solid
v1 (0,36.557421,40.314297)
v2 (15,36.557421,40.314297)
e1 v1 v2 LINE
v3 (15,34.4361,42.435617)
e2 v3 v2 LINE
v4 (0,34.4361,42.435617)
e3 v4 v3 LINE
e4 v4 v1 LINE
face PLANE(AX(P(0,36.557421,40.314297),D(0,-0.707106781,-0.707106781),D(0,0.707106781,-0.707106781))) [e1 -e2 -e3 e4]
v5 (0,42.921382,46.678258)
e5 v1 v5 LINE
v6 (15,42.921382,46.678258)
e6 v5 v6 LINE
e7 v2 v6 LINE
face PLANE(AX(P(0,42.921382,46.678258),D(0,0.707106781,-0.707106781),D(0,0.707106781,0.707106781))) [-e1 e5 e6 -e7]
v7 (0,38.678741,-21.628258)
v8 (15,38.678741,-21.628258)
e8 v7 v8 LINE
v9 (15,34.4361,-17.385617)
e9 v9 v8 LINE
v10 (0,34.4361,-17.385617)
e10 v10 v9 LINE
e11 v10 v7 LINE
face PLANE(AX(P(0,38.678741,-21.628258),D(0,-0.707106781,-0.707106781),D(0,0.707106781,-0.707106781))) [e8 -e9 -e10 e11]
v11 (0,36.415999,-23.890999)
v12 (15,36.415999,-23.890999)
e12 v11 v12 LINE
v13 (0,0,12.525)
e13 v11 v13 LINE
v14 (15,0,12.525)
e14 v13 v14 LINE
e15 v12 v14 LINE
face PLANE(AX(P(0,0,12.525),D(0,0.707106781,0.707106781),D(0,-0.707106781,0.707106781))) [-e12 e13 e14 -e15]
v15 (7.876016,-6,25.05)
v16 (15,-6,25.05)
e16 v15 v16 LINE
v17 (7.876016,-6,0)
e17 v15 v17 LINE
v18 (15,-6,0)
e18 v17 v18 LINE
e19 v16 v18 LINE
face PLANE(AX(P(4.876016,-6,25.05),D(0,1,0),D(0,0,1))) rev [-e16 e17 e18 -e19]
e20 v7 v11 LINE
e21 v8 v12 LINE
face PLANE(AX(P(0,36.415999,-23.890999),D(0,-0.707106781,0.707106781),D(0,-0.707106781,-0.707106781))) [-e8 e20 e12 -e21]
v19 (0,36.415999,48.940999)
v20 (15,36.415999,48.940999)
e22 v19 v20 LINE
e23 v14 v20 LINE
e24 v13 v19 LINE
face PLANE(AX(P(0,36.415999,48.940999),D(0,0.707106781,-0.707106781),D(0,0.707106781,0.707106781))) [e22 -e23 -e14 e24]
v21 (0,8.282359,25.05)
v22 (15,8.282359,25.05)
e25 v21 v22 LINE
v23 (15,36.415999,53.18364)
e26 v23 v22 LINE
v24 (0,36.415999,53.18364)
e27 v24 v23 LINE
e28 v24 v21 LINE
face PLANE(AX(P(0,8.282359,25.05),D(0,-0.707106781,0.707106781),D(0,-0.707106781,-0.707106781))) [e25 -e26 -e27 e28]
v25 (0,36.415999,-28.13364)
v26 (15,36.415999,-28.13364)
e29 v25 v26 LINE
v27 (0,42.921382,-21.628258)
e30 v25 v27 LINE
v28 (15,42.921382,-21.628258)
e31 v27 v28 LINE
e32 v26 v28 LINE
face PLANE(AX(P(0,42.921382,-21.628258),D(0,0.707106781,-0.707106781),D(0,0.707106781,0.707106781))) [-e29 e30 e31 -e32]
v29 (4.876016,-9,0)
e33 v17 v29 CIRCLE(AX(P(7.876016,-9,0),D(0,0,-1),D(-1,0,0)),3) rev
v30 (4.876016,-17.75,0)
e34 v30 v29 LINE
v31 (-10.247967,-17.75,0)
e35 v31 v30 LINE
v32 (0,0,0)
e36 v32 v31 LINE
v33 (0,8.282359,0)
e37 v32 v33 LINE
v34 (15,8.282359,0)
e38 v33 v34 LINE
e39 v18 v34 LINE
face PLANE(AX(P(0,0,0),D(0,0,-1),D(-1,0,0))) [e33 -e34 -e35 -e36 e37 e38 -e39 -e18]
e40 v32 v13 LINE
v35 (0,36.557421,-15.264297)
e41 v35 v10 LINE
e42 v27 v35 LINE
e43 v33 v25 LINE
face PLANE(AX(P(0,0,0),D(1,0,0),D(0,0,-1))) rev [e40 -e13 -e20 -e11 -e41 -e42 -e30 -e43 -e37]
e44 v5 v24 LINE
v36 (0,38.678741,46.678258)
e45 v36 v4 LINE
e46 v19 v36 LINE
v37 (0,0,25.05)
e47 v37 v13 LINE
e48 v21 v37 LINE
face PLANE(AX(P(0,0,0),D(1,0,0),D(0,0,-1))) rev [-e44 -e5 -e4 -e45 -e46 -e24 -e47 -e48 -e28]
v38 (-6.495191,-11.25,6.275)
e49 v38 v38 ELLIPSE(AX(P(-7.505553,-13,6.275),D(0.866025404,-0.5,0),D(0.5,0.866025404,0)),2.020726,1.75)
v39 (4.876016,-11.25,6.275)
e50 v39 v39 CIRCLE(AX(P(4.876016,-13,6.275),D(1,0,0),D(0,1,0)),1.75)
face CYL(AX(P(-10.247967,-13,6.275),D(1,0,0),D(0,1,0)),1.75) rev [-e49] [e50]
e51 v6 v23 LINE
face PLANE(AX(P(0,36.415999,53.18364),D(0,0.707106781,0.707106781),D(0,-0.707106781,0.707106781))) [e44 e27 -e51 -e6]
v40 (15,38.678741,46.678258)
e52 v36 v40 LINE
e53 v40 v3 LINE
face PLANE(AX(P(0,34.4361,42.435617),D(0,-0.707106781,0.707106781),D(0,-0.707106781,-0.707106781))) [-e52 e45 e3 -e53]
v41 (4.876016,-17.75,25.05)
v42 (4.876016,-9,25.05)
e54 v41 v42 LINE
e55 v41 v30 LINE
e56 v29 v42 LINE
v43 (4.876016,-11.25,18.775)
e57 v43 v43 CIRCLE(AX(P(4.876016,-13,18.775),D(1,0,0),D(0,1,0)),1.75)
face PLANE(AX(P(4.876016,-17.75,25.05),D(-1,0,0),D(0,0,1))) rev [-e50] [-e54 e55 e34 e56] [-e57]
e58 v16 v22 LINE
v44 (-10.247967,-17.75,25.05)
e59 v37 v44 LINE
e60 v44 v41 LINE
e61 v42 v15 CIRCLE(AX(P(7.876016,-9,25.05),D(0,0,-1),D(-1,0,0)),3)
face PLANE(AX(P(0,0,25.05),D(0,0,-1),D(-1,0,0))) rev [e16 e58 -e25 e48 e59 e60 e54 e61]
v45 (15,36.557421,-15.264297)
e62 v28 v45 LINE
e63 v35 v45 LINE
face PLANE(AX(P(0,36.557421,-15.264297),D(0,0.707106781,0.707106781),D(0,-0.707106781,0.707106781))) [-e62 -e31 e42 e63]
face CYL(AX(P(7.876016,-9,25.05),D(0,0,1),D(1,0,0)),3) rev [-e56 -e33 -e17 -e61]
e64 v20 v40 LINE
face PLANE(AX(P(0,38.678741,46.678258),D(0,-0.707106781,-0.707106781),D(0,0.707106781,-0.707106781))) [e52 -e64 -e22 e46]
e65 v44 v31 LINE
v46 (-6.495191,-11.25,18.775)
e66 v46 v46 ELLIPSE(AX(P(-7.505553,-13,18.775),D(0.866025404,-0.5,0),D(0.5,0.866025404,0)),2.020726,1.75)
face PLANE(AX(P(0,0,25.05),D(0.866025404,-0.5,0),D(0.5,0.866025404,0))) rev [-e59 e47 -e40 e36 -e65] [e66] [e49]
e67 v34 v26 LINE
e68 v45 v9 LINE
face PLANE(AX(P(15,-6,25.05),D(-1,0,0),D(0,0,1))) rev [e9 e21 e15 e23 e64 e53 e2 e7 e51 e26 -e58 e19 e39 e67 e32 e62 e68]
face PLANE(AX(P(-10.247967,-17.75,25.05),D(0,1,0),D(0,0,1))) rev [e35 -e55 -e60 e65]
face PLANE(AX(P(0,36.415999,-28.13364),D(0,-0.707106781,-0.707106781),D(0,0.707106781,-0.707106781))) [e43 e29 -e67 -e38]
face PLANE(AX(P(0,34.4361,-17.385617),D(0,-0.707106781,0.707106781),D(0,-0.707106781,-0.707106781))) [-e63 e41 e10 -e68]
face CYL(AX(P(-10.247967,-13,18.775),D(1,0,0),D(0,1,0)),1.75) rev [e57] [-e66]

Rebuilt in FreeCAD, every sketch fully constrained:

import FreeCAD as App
import Part
import Sketcher
from FreeCAD import Vector
Q = App.Units.Quantity


def edges_at(feature, points):
    """Names of the edges that pass closest to the given points."""
    edges = feature.Shape.Edges
    near = lambda p: min(range(len(edges)), key=lambda i: edges[i].distToShape(Part.Vertex(*p))[0])
    return sorted({f"Edge{near(p) + 1}" for p in points})

doc = App.newDocument("Part")
params = doc.addObject("Spreadsheet::Sheet", "Params")
for row, (alias, value) in enumerate([
    ("sketch1_width", "15 mm"),
    ("sketch1_height", "6 mm"),
    ("sketch1_height2", "11.75 mm"),
    ("pad1_length", "25.05 mm"),
    ("sketch2_diameter", "3.5 mm"),
    ("fillet_radius", "3 mm"),
    ("sketch3_length", "9 mm"),
    ("sketch3_length2", "3 mm"),
    ("sketch3_length3", "9.2 mm"),
    ("sketch3_length4", "51.5 mm"),
    ("sketch3_height", "25.05 mm"),
    ("pad2_length", "15 mm"),
], start=1):
    params.set(f"A{row}", alias)
    params.set(f"B{row}", "=" + value)
    params.setAlias(f"B{row}", alias)

body = doc.addObject("PartDesign::Body", "Body")

# Sketch on XY plane
sketch1 = body.newObject("Sketcher::SketchObject", "Sketch")
sketch1.AttachmentSupport = (doc.getObject("XY_Plane"), [""])
sketch1.MapMode = "FlatFace"
sketch1.addGeometry([
    Part.LineSegment(Vector(0, 0, 0), Vector(-10, -18, 0)),  # 0
    Part.LineSegment(Vector(-10, -18, 0), Vector(5, -18, 0)),  # 1
    Part.LineSegment(Vector(5, -18, 0), Vector(5, -6, 0)),  # 2
    Part.LineSegment(Vector(5, -6, 0), Vector(15, -6, 0)),  # 3
    Part.LineSegment(Vector(15, -6, 0), Vector(15, 0, 0)),  # 4
    Part.LineSegment(Vector(15, 0, 0), Vector(0, 0, 0)),  # 5
], False)
sketch1.addConstraint([
    Sketcher.Constraint("Coincident", 0, 2, 1, 1),
    Sketcher.Constraint("Coincident", 1, 2, 2, 1),
    Sketcher.Constraint("Coincident", 2, 2, 3, 1),
    Sketcher.Constraint("Coincident", 3, 2, 4, 1),
    Sketcher.Constraint("Coincident", 4, 2, 5, 1),
    Sketcher.Constraint("Coincident", 5, 2, 0, 1),
    Sketcher.Constraint("Horizontal", 1),
    Sketcher.Constraint("Vertical", 2),
    Sketcher.Constraint("Horizontal", 3),
    Sketcher.Constraint("Vertical", 4),
    Sketcher.Constraint("Horizontal", 5),
    Sketcher.Constraint("Coincident", 5, 2, -1, 1),
    Sketcher.Constraint("DistanceX", 5, 2, 5, 1, 15.0),
    Sketcher.Constraint("DistanceY", 4, 1, 4, 2, 6.0),
    Sketcher.Constraint("Angle", 0, Q("-120 deg")),
    Sketcher.Constraint("DistanceY", 2, 1, 2, 2, 11.75),
    Sketcher.Constraint("DistanceX", 1, 1, 1, 2, 15.123984),
])
sketch1.setExpression("Constraints[12]", "Params.sketch1_width")
sketch1.setExpression("Constraints[13]", "Params.sketch1_height")
sketch1.setExpression("Constraints[15]", "Params.sketch1_height2")
pad1 = body.newObject("PartDesign::Pad", "Pad")
pad1.Profile = sketch1
pad1.setExpression("Length", "Params.pad1_length")

# Sketch on YZ plane
sketch2 = body.newObject("Sketcher::SketchObject", "Sketch001")
sketch2.AttachmentSupport = (doc.getObject("YZ_Plane"), [""])
sketch2.MapMode = "FlatFace"
sketch2.AttachmentOffset = App.Placement(Vector(0, 0, 4.876016), App.Rotation())
sketch2.addGeometry([
    Part.Circle(Vector(-13, 18.8, 0), Vector(0, 0, 1), 1.8),
    Part.Circle(Vector(-13, 6.3, 0), Vector(0, 0, 1), 1.8),
], False)
sketch2.addConstraint([
    Sketcher.Constraint("Equal", 0, 1),
    Sketcher.Constraint("Vertical", 0, 3, 1, 3),
    Sketcher.Constraint("Diameter", 0, 3.5),
    Sketcher.Constraint("DistanceX", 0, 3, -1, 1, 13.0),
    Sketcher.Constraint("DistanceY", 1, 3, 0, 3, 12.5),
    Sketcher.Constraint("DistanceY", -1, 1, 0, 3, 18.775),
])
sketch2.setExpression("Constraints[2]", "Params.sketch2_diameter")
pocket1 = body.newObject("PartDesign::Pocket", "Pocket")
pocket1.Profile = sketch2
pocket1.Type = "ThroughAll"
doc.recompute()

fillet = body.newObject("PartDesign::Fillet", "Fillet")
fillet.Base = (pocket1, edges_at(pocket1, [(4.876, -6, 12.525)]))
fillet.setExpression("Radius", "Params.fillet_radius")

# Sketch on YZ plane
sketch3 = body.newObject("Sketcher::SketchObject", "Sketch002")
sketch3.AttachmentSupport = (doc.getObject("YZ_Plane"), [""])
sketch3.MapMode = "FlatFace"
sketch3.AttachmentOffset = App.Placement(Vector(0, 0, 15), App.Rotation())
sketch3.addGeometry([
    Part.LineSegment(Vector(36.4, 53.2, 0), Vector(8.3, 25.1, 0)),  # 0
    Part.LineSegment(Vector(8.3, 25.1, 0), Vector(-6, 25.1, 0)),  # 1
    Part.LineSegment(Vector(-6, 25.1, 0), Vector(-6, 0, 0)),  # 2
    Part.LineSegment(Vector(-6, 0, 0), Vector(8.3, 0, 0)),  # 3
    Part.LineSegment(Vector(8.3, 0, 0), Vector(36.4, -28.1, 0)),  # 4
    Part.LineSegment(Vector(36.4, -28.1, 0), Vector(42.9, -21.6, 0)),  # 5
    Part.LineSegment(Vector(42.9, -21.6, 0), Vector(36.6, -15.3, 0)),  # 6
    Part.LineSegment(Vector(36.6, -15.3, 0), Vector(34.4, -17.4, 0)),  # 7
    Part.LineSegment(Vector(34.4, -17.4, 0), Vector(38.7, -21.6, 0)),  # 8
    Part.LineSegment(Vector(38.7, -21.6, 0), Vector(36.4, -23.9, 0)),  # 9
    Part.LineSegment(Vector(36.4, -23.9, 0), Vector(0, 12.5, 0)),  # 10
    Part.LineSegment(Vector(0, 12.5, 0), Vector(36.4, 48.9, 0)),  # 11
    Part.LineSegment(Vector(36.4, 48.9, 0), Vector(38.7, 46.7, 0)),  # 12
    Part.LineSegment(Vector(38.7, 46.7, 0), Vector(34.4, 42.4, 0)),  # 13
    Part.LineSegment(Vector(34.4, 42.4, 0), Vector(36.6, 40.3, 0)),  # 14
    Part.LineSegment(Vector(36.6, 40.3, 0), Vector(42.9, 46.7, 0)),  # 15
    Part.LineSegment(Vector(42.9, 46.7, 0), Vector(36.4, 53.2, 0)),  # 16
], False)
sketch3.addConstraint([
    Sketcher.Constraint("Coincident", 0, 2, 1, 1),
    Sketcher.Constraint("Coincident", 1, 2, 2, 1),
    Sketcher.Constraint("Coincident", 2, 2, 3, 1),
    Sketcher.Constraint("Coincident", 3, 2, 4, 1),
    Sketcher.Constraint("Coincident", 4, 2, 5, 1),
    Sketcher.Constraint("Coincident", 5, 2, 6, 1),
    Sketcher.Constraint("Coincident", 6, 2, 7, 1),
    Sketcher.Constraint("Coincident", 7, 2, 8, 1),
    Sketcher.Constraint("Coincident", 8, 2, 9, 1),
    Sketcher.Constraint("Coincident", 9, 2, 10, 1),
    Sketcher.Constraint("Coincident", 10, 2, 11, 1),
    Sketcher.Constraint("Coincident", 11, 2, 12, 1),
    Sketcher.Constraint("Coincident", 12, 2, 13, 1),
    Sketcher.Constraint("Coincident", 13, 2, 14, 1),
    Sketcher.Constraint("Coincident", 14, 2, 15, 1),
    Sketcher.Constraint("Coincident", 15, 2, 16, 1),
    Sketcher.Constraint("Coincident", 16, 2, 0, 1),
    Sketcher.Constraint("Horizontal", 1),
    Sketcher.Constraint("Vertical", 2),
    Sketcher.Constraint("Horizontal", 3),
    Sketcher.Constraint("PointOnObject", 2, 2, -1),
    Sketcher.Constraint("PointOnObject", 10, 2, -2),
    Sketcher.Constraint("Perpendicular", 0, 4),
    Sketcher.Constraint("Perpendicular", 4, 5),
    Sketcher.Constraint("Perpendicular", 5, 6),
    Sketcher.Constraint("Perpendicular", 6, 7),
    Sketcher.Constraint("Perpendicular", 7, 8),
    Sketcher.Constraint("Perpendicular", 8, 9),
    Sketcher.Constraint("Perpendicular", 9, 10),
    Sketcher.Constraint("Perpendicular", 10, 11),
    Sketcher.Constraint("Perpendicular", 11, 12),
    Sketcher.Constraint("Perpendicular", 12, 13),
    Sketcher.Constraint("Perpendicular", 13, 14),
    Sketcher.Constraint("Perpendicular", 14, 15),
    Sketcher.Constraint("Perpendicular", 15, 16),
    Sketcher.Constraint("Horizontal", 5, 2, 8, 2),
    Sketcher.Constraint("Horizontal", 12, 2, 15, 2),
    Sketcher.Constraint("Vertical", 0, 2, 3, 2),
    Sketcher.Constraint("Vertical", 4, 2, 9, 2),
    Sketcher.Constraint("Vertical", 9, 2, 11, 2),
    Sketcher.Constraint("Vertical", 8, 2, 12, 2),
    Sketcher.Constraint("Vertical", 7, 2, 13, 2),
    Sketcher.Constraint("Vertical", 6, 2, 14, 2),
    Sketcher.Constraint("Vertical", 5, 2, 15, 2),
    Sketcher.Constraint("Vertical", 11, 2, 16, 2),
    Sketcher.Constraint("Distance", 6, 9.0),
    Sketcher.Constraint("Distance", 7, 3.0),
    Sketcher.Constraint("DistanceX", 1, 2, -1, 1, 6.0),
    Sketcher.Constraint("Distance", 5, 9.2),
    Sketcher.Constraint("Distance", 10, 51.5),
    Sketcher.Constraint("DistanceY", 2, 2, 2, 1, 25.05),
])
sketch3.setExpression("Constraints[45]", "Params.sketch3_length")
sketch3.setExpression("Constraints[46]", "Params.sketch3_length2")
sketch3.setExpression("Constraints[48]", "Params.sketch3_length3")
sketch3.setExpression("Constraints[49]", "Params.sketch3_length4")
sketch3.setExpression("Constraints[50]", "Params.sketch3_height")
pad2 = body.newObject("PartDesign::Pad", "Pad001")
pad2.Profile = sketch3
pad2.setExpression("Length", "Params.pad2_length")
pad2.Reversed = True

doc.recompute()
